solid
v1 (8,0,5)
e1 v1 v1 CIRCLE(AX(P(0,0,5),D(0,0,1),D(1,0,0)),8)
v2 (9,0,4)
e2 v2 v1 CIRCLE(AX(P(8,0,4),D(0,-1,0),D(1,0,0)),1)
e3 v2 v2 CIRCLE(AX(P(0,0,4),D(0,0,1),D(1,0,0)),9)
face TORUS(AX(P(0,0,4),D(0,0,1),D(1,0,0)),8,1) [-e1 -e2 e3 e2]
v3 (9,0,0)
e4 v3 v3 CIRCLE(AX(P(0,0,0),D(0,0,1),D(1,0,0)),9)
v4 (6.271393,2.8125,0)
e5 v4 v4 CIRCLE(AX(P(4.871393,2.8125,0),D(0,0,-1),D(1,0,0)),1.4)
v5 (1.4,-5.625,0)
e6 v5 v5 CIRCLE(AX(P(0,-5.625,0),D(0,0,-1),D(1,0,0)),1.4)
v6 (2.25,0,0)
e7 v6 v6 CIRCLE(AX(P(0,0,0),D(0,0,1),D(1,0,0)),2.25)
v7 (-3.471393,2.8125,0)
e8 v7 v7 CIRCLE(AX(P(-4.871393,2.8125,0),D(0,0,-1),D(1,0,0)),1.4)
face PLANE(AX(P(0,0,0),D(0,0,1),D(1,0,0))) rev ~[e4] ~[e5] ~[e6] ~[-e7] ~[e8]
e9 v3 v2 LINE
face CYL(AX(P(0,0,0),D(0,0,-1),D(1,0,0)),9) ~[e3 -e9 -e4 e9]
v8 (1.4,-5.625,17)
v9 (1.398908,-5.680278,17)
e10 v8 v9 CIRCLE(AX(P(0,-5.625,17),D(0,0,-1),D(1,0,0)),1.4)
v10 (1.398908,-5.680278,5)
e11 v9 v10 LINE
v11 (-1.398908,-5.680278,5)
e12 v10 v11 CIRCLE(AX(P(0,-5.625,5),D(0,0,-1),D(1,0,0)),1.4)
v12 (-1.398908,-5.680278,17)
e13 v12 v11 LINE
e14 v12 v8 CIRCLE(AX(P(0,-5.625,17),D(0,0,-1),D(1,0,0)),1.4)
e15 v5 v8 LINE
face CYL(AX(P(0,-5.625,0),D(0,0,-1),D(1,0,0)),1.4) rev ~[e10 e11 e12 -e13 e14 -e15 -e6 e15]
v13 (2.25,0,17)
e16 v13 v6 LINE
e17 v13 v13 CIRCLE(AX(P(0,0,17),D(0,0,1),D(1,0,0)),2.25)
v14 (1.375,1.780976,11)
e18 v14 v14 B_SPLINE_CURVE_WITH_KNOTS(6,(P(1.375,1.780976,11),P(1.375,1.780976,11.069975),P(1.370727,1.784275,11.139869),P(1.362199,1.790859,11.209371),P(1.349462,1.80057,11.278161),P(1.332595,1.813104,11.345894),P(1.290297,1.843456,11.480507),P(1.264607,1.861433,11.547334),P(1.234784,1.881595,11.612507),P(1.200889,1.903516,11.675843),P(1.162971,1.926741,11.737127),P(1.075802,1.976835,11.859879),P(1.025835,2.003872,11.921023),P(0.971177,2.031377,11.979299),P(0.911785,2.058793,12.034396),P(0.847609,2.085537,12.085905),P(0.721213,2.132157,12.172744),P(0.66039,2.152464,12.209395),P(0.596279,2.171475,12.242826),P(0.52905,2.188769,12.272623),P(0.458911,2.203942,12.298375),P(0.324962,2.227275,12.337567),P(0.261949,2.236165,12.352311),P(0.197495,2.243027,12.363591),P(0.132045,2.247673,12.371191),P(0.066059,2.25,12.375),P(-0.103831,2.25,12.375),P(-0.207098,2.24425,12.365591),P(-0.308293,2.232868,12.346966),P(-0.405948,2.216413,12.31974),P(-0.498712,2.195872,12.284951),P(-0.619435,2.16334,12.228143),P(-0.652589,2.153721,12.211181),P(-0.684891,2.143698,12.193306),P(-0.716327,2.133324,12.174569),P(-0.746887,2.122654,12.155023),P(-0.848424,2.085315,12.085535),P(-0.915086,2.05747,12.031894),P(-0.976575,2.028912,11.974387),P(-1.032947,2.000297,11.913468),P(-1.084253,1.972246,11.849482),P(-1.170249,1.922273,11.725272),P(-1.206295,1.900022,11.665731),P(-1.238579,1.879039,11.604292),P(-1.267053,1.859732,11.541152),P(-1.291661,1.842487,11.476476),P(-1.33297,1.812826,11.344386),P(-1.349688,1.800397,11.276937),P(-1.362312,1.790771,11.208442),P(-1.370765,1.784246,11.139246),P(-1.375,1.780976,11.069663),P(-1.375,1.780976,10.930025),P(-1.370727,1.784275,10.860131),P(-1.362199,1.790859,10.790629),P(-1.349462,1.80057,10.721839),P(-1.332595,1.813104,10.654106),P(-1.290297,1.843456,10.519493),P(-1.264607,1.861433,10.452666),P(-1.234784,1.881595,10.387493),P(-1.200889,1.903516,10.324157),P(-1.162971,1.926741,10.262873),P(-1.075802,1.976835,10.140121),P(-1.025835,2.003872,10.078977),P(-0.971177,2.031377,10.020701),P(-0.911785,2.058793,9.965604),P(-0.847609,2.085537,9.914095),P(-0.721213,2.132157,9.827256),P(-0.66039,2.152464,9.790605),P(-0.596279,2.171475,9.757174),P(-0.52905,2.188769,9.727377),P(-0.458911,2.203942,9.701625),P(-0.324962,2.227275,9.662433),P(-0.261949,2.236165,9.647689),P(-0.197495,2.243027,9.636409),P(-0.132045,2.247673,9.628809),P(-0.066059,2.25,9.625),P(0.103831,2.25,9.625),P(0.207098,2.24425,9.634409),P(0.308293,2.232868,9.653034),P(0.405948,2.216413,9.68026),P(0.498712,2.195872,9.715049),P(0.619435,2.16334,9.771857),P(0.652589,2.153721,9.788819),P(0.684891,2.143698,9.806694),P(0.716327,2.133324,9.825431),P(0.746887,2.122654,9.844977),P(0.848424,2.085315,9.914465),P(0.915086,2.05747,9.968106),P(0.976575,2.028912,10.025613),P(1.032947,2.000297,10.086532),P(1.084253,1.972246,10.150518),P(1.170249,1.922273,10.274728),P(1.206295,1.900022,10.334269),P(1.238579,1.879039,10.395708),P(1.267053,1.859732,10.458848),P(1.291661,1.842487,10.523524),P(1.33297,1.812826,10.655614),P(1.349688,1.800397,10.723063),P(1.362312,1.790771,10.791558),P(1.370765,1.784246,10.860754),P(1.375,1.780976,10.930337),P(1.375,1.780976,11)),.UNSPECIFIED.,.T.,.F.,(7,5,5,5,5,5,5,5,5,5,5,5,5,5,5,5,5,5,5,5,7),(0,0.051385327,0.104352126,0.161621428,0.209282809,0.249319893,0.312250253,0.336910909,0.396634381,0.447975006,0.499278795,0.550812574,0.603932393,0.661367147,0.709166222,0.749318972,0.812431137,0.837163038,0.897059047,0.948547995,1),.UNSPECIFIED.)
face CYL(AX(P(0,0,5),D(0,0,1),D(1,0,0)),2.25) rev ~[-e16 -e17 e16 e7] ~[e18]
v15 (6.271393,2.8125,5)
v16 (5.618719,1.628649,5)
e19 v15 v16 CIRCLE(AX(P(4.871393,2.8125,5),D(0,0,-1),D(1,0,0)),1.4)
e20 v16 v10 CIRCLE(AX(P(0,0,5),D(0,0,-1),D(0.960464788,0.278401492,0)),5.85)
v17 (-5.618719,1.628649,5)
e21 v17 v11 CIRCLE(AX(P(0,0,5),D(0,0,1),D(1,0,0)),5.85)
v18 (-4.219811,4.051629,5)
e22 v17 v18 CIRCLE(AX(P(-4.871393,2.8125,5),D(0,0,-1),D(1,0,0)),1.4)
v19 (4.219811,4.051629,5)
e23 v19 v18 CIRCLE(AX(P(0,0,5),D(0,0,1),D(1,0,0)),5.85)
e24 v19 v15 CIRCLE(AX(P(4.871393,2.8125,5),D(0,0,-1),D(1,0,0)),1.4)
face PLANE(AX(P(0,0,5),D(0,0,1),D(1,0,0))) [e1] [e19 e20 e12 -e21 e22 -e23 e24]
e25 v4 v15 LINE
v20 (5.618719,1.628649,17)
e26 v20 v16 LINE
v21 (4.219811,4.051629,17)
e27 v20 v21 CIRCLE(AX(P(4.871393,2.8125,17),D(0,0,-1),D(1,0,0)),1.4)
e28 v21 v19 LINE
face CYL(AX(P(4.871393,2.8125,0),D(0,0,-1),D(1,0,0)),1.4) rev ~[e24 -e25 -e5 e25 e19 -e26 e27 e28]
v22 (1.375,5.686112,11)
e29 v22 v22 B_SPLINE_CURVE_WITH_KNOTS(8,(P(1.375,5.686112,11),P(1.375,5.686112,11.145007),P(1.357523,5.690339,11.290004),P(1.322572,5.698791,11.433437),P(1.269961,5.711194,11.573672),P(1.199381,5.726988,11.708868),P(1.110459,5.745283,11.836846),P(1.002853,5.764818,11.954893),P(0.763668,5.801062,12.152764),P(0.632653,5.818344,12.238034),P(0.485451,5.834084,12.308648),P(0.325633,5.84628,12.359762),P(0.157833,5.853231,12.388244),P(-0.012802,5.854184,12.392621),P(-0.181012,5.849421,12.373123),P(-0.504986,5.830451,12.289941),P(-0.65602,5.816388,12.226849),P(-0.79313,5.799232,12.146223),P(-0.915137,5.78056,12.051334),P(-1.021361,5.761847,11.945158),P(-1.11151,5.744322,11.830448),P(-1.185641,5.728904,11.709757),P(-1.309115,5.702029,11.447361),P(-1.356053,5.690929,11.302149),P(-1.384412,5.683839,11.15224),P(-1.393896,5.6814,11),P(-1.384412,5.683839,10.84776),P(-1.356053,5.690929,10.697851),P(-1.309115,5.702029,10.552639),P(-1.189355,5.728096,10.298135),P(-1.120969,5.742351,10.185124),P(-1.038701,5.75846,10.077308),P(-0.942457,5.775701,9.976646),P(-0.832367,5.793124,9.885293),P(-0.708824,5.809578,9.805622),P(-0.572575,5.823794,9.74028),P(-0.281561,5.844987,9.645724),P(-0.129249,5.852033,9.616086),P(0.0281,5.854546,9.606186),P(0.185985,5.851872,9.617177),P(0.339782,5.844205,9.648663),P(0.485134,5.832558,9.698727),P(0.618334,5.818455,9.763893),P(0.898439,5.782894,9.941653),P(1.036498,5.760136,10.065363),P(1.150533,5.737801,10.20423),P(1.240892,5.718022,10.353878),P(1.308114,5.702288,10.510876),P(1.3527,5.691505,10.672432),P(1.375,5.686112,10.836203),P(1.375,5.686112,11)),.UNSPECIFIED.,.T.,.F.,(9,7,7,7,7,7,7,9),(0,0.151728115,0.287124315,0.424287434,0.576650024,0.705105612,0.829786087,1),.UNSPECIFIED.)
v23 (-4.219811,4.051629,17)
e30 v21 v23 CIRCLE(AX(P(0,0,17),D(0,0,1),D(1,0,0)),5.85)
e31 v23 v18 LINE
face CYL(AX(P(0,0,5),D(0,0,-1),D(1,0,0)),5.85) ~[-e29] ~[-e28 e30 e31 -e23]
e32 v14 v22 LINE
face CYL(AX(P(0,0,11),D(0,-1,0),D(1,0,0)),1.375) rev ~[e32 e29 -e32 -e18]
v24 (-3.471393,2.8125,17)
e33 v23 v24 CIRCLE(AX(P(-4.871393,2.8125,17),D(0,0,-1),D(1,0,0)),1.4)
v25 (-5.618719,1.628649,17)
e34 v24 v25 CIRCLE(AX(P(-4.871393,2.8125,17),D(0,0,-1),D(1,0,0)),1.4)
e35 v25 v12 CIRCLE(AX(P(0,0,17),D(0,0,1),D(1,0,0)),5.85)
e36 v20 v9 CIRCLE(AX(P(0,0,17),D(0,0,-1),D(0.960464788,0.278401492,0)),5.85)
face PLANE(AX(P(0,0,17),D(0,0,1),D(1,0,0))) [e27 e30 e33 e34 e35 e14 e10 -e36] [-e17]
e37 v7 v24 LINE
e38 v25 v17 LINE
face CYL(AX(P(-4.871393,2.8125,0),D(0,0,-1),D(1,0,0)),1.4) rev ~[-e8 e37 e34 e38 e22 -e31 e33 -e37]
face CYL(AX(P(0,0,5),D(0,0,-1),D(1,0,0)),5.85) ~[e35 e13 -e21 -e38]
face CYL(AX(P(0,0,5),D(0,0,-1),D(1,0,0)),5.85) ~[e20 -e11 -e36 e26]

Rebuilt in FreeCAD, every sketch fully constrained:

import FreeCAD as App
import Part
import Sketcher
from FreeCAD import Vector


def edges_at(feature, points):
    """Names of the edges that pass closest to the given points."""
    edges = feature.Shape.Edges
    near = lambda p: min(range(len(edges)), key=lambda i: edges[i].distToShape(Part.Vertex(*p))[0])
    return sorted({f"Edge{near(p) + 1}" for p in points})

doc = App.newDocument("Part")
params = doc.addObject("Spreadsheet::Sheet", "Params")
for row, (alias, value) in enumerate([
    ("sketch1_diameter", "18 mm"),
    ("pad1_length", "5 mm"),
    ("sketch2_diameter", "11.7 mm"),
    ("sketch2_diameter2", "4.5 mm"),
    ("pad2_length", "12 mm"),
    ("sketch3_diameter", "2.75 mm"),
    ("pocket1_length", "25 mm"),
    ("sketch4_diameter", "4.5 mm"),
    ("sketch5_diameter", "2.8 mm"),
    ("pocket3_length", "25 mm"),
    ("fillet_radius", "1 mm"),
], start=1):
    params.set(f"A{row}", alias)
    params.set(f"B{row}", "=" + value)
    params.setAlias(f"B{row}", alias)

body = doc.addObject("PartDesign::Body", "Body")

sketch1 = body.newObject("Sketcher::SketchObject", "Sketch")
sketch1.AttachmentSupport = (doc.getObject("XY_Plane"), [""])
sketch1.MapMode = "FlatFace"
sketch1.addGeometry(Part.Circle(Vector(0, 0, 0), Vector(0, 0, 1), 9), False)
sketch1.addConstraint([
    Sketcher.Constraint("Coincident", 0, 3, -1, 1),
    Sketcher.Constraint("Diameter", 0, 18.0),
])
sketch1.setExpression("Constraints[1]", "Params.sketch1_diameter")
pad1 = body.newObject("PartDesign::Pad", "Pad")
pad1.Profile = sketch1
pad1.setExpression("Length", "Params.pad1_length")

sketch2 = body.newObject("Sketcher::SketchObject", "Sketch001")
sketch2.AttachmentSupport = (doc.getObject("XY_Plane"), [""])
sketch2.MapMode = "FlatFace"
sketch2.AttachmentOffset = App.Placement(Vector(0, 0, 5), App.Rotation())
sketch2.addGeometry([
    Part.Circle(Vector(0, 0, 0), Vector(0, 0, 1), 5.8),
    Part.Circle(Vector(0, 0, 0), Vector(0, 0, 1), 2.2),
], False)
sketch2.addConstraint([
    Sketcher.Constraint("Coincident", 0, 3, -1, 1),
    Sketcher.Constraint("Coincident", 1, 3, -1, 1),
    Sketcher.Constraint("Diameter", 0, 11.7),
    Sketcher.Constraint("Diameter", 1, 4.5),
])
sketch2.setExpression("Constraints[2]", "Params.sketch2_diameter")
sketch2.setExpression("Constraints[3]", "Params.sketch2_diameter2")
pad2 = body.newObject("PartDesign::Pad", "Pad001")
pad2.Profile = sketch2
pad2.setExpression("Length", "Params.pad2_length")

sketch3 = body.newObject("Sketcher::SketchObject", "Sketch002")
sketch3.AttachmentSupport = (doc.getObject("XZ_Plane"), [""])
sketch3.MapMode = "FlatFace"
sketch3.addGeometry(Part.Circle(Vector(0, 11, 0), Vector(0, 0, 1), 1.4), False)
sketch3.addConstraint([
    Sketcher.Constraint("PointOnObject", 0, 3, -2),
    Sketcher.Constraint("Diameter", 0, 2.75),
    Sketcher.Constraint("DistanceY", -1, 1, 0, 3, 11.0),
])
sketch3.setExpression("Constraints[1]", "Params.sketch3_diameter")
pocket1 = body.newObject("PartDesign::Pocket", "Pocket")
pocket1.Profile = sketch3
pocket1.setExpression("Length", "Params.pocket1_length")

sketch4 = body.newObject("Sketcher::SketchObject", "Sketch003")
sketch4.AttachmentSupport = (doc.getObject("XY_Plane"), [""])
sketch4.MapMode = "FlatFace"
sketch4.AttachmentOffset = App.Placement(Vector(0, 0, 5), App.Rotation())
sketch4.addGeometry(Part.Circle(Vector(0, 0, 0), Vector(0, 0, 1), 2.2), False)
sketch4.addConstraint([
    Sketcher.Constraint("Coincident", 0, 3, -1, 1),
    Sketcher.Constraint("Diameter", 0, 4.5),
])
sketch4.setExpression("Constraints[1]", "Params.sketch4_diameter")
pocket2 = body.newObject("PartDesign::Pocket", "Pocket001")
pocket2.Profile = sketch4
pocket2.Type = "ThroughAll"

sketch5 = body.newObject("Sketcher::SketchObject", "Sketch004")
sketch5.AttachmentSupport = (doc.getObject("XY_Plane"), [""])
sketch5.MapMode = "FlatFace"
sketch5.addGeometry([
    Part.Circle(Vector(-4.9, 2.8, 0), Vector(0, 0, 1), 1.4),
    Part.Circle(Vector(0, -5.6, 0), Vector(0, 0, 1), 1.4),
    Part.Circle(Vector(4.9, 2.8, 0), Vector(0, 0, 1), 1.4),
], False)
sketch5.addConstraint([
    Sketcher.Constraint("Equal", 0, 1),
    Sketcher.Constraint("Equal", 1, 2),
    Sketcher.Constraint("Symmetric", 0, 3, 2, 3, -2),
    Sketcher.Constraint("PointOnObject", 1, 3, -2),
    Sketcher.Constraint("Diameter", 0, 2.8),
    Sketcher.Constraint("DistanceY", 1, 3, -1, 1, 5.625),
    Sketcher.Constraint("DistanceY", -1, 1, 0, 3, 2.8125),
    Sketcher.Constraint("DistanceX", 0, 3, -1, 1, 4.871393),
])
sketch5.setExpression("Constraints[4]", "Params.sketch5_diameter")
pocket3 = body.newObject("PartDesign::Pocket", "Pocket002")
pocket3.Profile = sketch5
pocket3.setExpression("Length", "Params.pocket3_length")
pocket3.Reversed = True
doc.recompute()

fillet = body.newObject("PartDesign::Fillet", "Fillet")
fillet.Base = (pocket3, edges_at(pocket3, [(-9, 0, 5)]))
fillet.setExpression("Radius", "Params.fillet_radius")

doc.recompute()
